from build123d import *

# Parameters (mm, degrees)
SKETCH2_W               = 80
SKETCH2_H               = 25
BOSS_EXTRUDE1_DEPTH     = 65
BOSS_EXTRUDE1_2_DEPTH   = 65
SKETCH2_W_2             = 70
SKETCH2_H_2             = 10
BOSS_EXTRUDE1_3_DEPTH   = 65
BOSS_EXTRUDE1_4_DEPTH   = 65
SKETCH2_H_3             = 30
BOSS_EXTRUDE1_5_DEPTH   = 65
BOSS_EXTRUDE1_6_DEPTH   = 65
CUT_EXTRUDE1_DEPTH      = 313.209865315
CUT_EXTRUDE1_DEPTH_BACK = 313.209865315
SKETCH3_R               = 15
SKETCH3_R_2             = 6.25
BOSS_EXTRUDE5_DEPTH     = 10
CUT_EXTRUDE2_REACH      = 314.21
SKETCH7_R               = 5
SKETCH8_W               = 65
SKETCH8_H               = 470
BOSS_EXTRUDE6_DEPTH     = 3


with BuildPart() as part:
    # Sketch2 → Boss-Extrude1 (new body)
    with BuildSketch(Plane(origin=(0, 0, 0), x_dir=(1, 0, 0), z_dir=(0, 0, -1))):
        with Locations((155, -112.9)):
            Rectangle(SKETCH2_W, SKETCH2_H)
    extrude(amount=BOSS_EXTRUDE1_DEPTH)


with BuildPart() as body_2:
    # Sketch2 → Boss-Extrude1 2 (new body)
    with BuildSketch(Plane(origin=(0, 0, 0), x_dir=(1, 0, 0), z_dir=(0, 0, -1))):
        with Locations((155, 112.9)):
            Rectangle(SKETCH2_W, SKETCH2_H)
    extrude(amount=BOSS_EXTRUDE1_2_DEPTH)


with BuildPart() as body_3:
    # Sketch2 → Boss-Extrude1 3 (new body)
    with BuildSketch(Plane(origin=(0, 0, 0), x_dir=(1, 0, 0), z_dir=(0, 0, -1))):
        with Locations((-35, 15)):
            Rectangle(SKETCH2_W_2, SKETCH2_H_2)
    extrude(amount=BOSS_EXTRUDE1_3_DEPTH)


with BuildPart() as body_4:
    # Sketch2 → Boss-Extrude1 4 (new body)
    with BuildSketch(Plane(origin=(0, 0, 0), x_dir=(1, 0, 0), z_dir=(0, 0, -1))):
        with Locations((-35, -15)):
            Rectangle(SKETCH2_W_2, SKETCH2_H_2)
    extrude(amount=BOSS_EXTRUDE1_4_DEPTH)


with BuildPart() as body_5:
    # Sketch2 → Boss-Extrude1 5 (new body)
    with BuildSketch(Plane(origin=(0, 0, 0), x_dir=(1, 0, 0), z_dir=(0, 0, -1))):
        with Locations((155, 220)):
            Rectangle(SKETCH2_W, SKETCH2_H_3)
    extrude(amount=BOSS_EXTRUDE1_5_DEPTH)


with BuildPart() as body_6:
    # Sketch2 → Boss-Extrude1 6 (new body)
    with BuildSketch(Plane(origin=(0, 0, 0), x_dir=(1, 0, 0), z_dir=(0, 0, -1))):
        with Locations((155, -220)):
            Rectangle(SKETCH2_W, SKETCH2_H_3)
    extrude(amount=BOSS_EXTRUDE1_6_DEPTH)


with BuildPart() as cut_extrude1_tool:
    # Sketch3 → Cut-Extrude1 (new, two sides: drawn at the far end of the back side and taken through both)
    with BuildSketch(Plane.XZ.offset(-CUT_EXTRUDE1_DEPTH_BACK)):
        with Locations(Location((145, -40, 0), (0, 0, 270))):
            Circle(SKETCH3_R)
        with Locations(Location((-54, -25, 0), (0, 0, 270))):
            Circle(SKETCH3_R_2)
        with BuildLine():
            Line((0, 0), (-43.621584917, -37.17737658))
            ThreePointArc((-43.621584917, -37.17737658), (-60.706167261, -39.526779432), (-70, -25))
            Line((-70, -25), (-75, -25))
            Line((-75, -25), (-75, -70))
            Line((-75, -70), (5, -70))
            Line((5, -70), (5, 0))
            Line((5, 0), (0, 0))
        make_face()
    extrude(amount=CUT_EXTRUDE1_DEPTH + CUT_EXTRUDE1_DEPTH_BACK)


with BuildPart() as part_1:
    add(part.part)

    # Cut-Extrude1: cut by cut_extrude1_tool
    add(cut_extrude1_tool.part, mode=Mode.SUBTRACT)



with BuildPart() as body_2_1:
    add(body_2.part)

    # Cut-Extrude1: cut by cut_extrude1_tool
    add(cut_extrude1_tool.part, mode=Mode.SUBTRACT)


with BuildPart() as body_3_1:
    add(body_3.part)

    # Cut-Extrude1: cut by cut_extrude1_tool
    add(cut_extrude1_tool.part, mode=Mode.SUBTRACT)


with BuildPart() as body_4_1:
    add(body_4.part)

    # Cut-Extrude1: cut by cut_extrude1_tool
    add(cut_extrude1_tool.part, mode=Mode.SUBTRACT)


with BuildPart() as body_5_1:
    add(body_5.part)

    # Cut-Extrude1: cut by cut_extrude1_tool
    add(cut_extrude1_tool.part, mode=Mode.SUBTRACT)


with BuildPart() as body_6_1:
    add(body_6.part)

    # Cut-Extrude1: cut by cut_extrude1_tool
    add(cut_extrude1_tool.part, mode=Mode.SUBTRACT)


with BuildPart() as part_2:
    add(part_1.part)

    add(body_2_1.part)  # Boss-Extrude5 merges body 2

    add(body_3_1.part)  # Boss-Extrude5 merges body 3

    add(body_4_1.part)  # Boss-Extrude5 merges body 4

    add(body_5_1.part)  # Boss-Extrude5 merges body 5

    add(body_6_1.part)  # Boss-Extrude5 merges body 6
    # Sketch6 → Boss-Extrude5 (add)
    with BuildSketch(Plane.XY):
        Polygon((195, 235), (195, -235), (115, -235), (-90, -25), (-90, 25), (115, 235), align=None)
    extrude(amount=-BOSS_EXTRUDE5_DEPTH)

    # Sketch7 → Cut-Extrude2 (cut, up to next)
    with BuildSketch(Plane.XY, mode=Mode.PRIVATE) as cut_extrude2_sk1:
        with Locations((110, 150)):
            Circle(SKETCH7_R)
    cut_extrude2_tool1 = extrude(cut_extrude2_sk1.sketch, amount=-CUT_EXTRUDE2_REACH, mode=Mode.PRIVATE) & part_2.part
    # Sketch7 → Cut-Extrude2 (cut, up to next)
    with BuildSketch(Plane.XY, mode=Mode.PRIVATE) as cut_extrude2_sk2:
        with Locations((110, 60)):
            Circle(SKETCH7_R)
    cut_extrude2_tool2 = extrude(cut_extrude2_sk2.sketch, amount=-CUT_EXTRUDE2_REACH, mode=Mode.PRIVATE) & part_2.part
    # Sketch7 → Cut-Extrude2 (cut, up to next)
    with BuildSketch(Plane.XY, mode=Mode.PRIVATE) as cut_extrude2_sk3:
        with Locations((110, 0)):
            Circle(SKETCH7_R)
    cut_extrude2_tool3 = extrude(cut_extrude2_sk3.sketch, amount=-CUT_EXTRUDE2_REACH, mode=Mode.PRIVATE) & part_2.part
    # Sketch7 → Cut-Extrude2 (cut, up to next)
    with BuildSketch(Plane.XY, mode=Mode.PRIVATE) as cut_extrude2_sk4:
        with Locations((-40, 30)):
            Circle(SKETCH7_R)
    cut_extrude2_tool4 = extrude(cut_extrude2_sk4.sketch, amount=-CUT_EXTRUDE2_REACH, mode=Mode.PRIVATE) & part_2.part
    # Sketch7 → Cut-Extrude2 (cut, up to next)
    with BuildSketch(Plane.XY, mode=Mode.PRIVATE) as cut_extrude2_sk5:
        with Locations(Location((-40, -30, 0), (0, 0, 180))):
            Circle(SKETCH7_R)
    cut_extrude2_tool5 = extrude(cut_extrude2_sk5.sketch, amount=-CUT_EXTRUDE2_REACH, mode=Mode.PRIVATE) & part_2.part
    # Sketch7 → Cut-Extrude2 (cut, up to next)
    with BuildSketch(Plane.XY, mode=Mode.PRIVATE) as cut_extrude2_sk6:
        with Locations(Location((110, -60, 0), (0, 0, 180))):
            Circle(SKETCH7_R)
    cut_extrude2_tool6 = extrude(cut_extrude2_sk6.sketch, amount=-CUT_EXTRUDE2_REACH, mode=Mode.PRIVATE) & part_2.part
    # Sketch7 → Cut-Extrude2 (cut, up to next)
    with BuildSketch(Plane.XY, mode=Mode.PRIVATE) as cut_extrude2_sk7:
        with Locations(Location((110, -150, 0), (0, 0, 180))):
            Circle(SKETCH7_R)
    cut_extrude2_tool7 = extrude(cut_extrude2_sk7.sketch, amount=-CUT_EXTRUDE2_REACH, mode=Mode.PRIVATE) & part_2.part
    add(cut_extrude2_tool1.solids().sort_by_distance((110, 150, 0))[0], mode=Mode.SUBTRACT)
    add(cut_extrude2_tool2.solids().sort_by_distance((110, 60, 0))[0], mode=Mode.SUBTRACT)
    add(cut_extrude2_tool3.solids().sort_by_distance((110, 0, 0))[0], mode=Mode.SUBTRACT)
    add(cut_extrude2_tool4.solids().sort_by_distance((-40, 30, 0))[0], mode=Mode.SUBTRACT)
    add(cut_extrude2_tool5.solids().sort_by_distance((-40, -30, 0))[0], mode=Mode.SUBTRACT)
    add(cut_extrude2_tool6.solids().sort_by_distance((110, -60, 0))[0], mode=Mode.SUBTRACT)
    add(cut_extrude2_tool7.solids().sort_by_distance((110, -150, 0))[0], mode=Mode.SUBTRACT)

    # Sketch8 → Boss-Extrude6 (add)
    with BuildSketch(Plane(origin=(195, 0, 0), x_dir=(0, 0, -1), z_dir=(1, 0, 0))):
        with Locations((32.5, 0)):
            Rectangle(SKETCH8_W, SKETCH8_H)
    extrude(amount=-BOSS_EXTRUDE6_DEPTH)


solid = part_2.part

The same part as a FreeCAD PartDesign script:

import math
import FreeCAD as App
import Part
import Sketcher

V = App.Vector
Q = App.Units.Quantity


def add_polygon(sketch, points):
    """Adds a closed chain of lines whose ends are joined by coincident constraints."""
    first, n = sketch.GeometryCount, len(points)
    for a, b in zip(points, points[1:] + points[:1]):
        sketch.addGeometry(Part.LineSegment(App.Vector(*a, 0), App.Vector(*b, 0)), False)
    for i in range(n):
        sketch.addConstraint(Sketcher.Constraint("Coincident", first + i, 2, first + (i + 1) % n, 1))

doc = App.newDocument("Part")
body = doc.addObject("PartDesign::Body", "Body")

# Sketch on XY plane
sketch1 = body.newObject("Sketcher::SketchObject", "Sketch")
sketch1.AttachmentSupport = (doc.getObject("XY_Plane"), [""])
sketch1.MapMode = "FlatFace"
add_polygon(sketch1, [(115, 100), (115, 125), (195, 125), (195, 100)])  # lines 0-3
sketch1.addConstraint([
    Sketcher.Constraint("Vertical", 0),
    Sketcher.Constraint("Horizontal", 1),
    Sketcher.Constraint("Vertical", 2),
    Sketcher.Constraint("Horizontal", 3),
    Sketcher.Constraint("DistanceX", 1, 1, 1, 2, Q("80 mm")),
    Sketcher.Constraint("DistanceY", 0, 1, 0, 2, Q("25 mm")),
    Sketcher.Constraint("DistanceX", -1, 1, 0, 2, Q("115 mm")),
    Sketcher.Constraint("DistanceY", -1, 1, 0, 2, Q("125.4 mm")),
])
pad1 = body.newObject("PartDesign::Pad", "Pad")
pad1.Profile = sketch1
pad1.Length = 65
pad1.Reversed = True
body2 = doc.addObject("PartDesign::Body", "Body001")

# Sketch on XY plane
sketch2 = body2.newObject("Sketcher::SketchObject", "Sketch001")
sketch2.AttachmentSupport = (doc.getObject("XY_Plane001"), [""])
sketch2.MapMode = "FlatFace"
add_polygon(sketch2, [(115, -125), (115, -100), (195, -100), (195, -125)])  # lines 0-3
sketch2.addConstraint([
    Sketcher.Constraint("Vertical", 0),
    Sketcher.Constraint("Horizontal", 1),
    Sketcher.Constraint("Vertical", 2),
    Sketcher.Constraint("Horizontal", 3),
    Sketcher.Constraint("DistanceX", 1, 1, 1, 2, Q("80 mm")),
    Sketcher.Constraint("DistanceY", 0, 1, 0, 2, Q("25 mm")),
    Sketcher.Constraint("DistanceX", -1, 1, 0, 2, Q("115 mm")),
    Sketcher.Constraint("DistanceY", 0, 2, -1, 1, Q("100.4 mm")),
])
pad2 = body2.newObject("PartDesign::Pad", "Pad001")
pad2.Profile = sketch2
pad2.Length = 65
pad2.Reversed = True
body3 = doc.addObject("PartDesign::Body", "Body002")

# Sketch on XY plane
sketch3 = body3.newObject("Sketcher::SketchObject", "Sketch002")
sketch3.AttachmentSupport = (doc.getObject("XY_Plane002"), [""])
sketch3.MapMode = "FlatFace"
add_polygon(sketch3, [(-70, -20), (-70, -10), (0, -10), (0, -20)])  # lines 0-3
sketch3.addConstraint([
    Sketcher.Constraint("Vertical", 0),
    Sketcher.Constraint("Horizontal", 1),
    Sketcher.Constraint("Vertical", 2),
    Sketcher.Constraint("Horizontal", 3),
    Sketcher.Constraint("PointOnObject", 1, 2, -2),
    Sketcher.Constraint("DistanceX", 1, 1, 1, 2, Q("70 mm")),
    Sketcher.Constraint("DistanceY", 0, 1, 0, 2, Q("10 mm")),
    Sketcher.Constraint("DistanceY", 0, 2, -1, 1, Q("10 mm")),
])
pad3 = body3.newObject("PartDesign::Pad", "Pad002")
pad3.Profile = sketch3
pad3.Length = 65
pad3.Reversed = True
body4 = doc.addObject("PartDesign::Body", "Body003")

# Sketch on XY plane
sketch4 = body4.newObject("Sketcher::SketchObject", "Sketch003")
sketch4.AttachmentSupport = (doc.getObject("XY_Plane003"), [""])
sketch4.MapMode = "FlatFace"
add_polygon(sketch4, [(-70, 10), (-70, 20), (0, 20), (0, 10)])  # lines 0-3
sketch4.addConstraint([
    Sketcher.Constraint("Vertical", 0),
    Sketcher.Constraint("Horizontal", 1),
    Sketcher.Constraint("Vertical", 2),
    Sketcher.Constraint("Horizontal", 3),
    Sketcher.Constraint("PointOnObject", 1, 2, -2),
    Sketcher.Constraint("DistanceX", 1, 1, 1, 2, Q("70 mm")),
    Sketcher.Constraint("DistanceY", 0, 1, 0, 2, Q("10 mm")),
    Sketcher.Constraint("DistanceY", -1, 1, 0, 2, Q("20 mm")),
])
pad4 = body4.newObject("PartDesign::Pad", "Pad003")
pad4.Profile = sketch4
pad4.Length = 65
pad4.Reversed = True
body5 = doc.addObject("PartDesign::Body", "Body004")

# Sketch on XY plane
sketch5 = body5.newObject("Sketcher::SketchObject", "Sketch004")
sketch5.AttachmentSupport = (doc.getObject("XY_Plane004"), [""])
sketch5.MapMode = "FlatFace"
add_polygon(sketch5, [(115, -235), (115, -205), (195, -205), (195, -235)])  # lines 0-3
sketch5.addConstraint([
    Sketcher.Constraint("Vertical", 0),
    Sketcher.Constraint("Horizontal", 1),
    Sketcher.Constraint("Vertical", 2),
    Sketcher.Constraint("Horizontal", 3),
    Sketcher.Constraint("DistanceX", 1, 1, 1, 2, Q("80 mm")),
    Sketcher.Constraint("DistanceY", 0, 1, 0, 2, Q("30 mm")),
    Sketcher.Constraint("DistanceX", -1, 1, 0, 2, Q("115 mm")),
    Sketcher.Constraint("DistanceY", 0, 2, -1, 1, Q("205 mm")),
])
pad5 = body5.newObject("PartDesign::Pad", "Pad004")
pad5.Profile = sketch5
pad5.Length = 65
pad5.Reversed = True
body6 = doc.addObject("PartDesign::Body", "Body005")

# Sketch on XY plane
sketch6 = body6.newObject("Sketcher::SketchObject", "Sketch005")
sketch6.AttachmentSupport = (doc.getObject("XY_Plane005"), [""])
sketch6.MapMode = "FlatFace"
add_polygon(sketch6, [(115, 205), (115, 235), (195, 235), (195, 205)])  # lines 0-3
sketch6.addConstraint([
    Sketcher.Constraint("Vertical", 0),
    Sketcher.Constraint("Horizontal", 1),
    Sketcher.Constraint("Vertical", 2),
    Sketcher.Constraint("Horizontal", 3),
    Sketcher.Constraint("DistanceX", 1, 1, 1, 2, Q("80 mm")),
    Sketcher.Constraint("DistanceY", 0, 1, 0, 2, Q("30 mm")),
    Sketcher.Constraint("DistanceX", -1, 1, 0, 2, Q("115 mm")),
    Sketcher.Constraint("DistanceY", -1, 1, 0, 2, Q("235 mm")),
])
pad6 = body6.newObject("PartDesign::Pad", "Pad005")
pad6.Profile = sketch6
pad6.Length = 65
pad6.Reversed = True
body7 = doc.addObject("PartDesign::Body", "Body006")
body7.AllowCompound = True

# Sketch on XZ plane
sketch7 = body7.newObject("Sketcher::SketchObject", "Sketch006")
sketch7.AttachmentSupport = (doc.getObject("XZ_Plane006"), [""])
sketch7.MapMode = "FlatFace"
sketch7.addGeometry([
    Part.Circle(V(145, -40, 0), V(0, 0, 1), 15),  # 0
    Part.Circle(V(-54, -25, 0), V(0, 0, 1), 6),  # 1
    Part.LineSegment(V(0, 0, 0), V(-44, -37, 0)),  # 2
    Part.ArcOfCircle(Part.Circle(V(-54, -25, 0), V(0, 0, 1), 16), math.radians(180), math.radians(310)),  # 3
    Part.LineSegment(V(-70, -25, 0), V(-75, -25, 0)),  # 4
    Part.LineSegment(V(-75, -25, 0), V(-75, -70, 0)),  # 5
    Part.LineSegment(V(-75, -70, 0), V(5, -70, 0)),  # 6
    Part.LineSegment(V(5, -70, 0), V(5, 0, 0)),  # 7
    Part.LineSegment(V(5, 0, 0), V(0, 0, 0)),  # 8
], False)
sketch7.addConstraint([
    Sketcher.Constraint("Tangent", 2, 2, 3, 2),
    Sketcher.Constraint("Coincident", 3, 1, 4, 1),
    Sketcher.Constraint("Coincident", 4, 2, 5, 1),
    Sketcher.Constraint("Coincident", 5, 2, 6, 1),
    Sketcher.Constraint("Coincident", 6, 2, 7, 1),
    Sketcher.Constraint("Coincident", 7, 2, 8, 1),
    Sketcher.Constraint("Coincident", 8, 2, 2, 1),
    Sketcher.Constraint("Horizontal", 4),
    Sketcher.Constraint("Vertical", 5),
    Sketcher.Constraint("Horizontal", 6),
    Sketcher.Constraint("Vertical", 7),
    Sketcher.Constraint("Horizontal", 8),
    Sketcher.Constraint("Coincident", 8, 2, -1, 1),
    Sketcher.Constraint("Coincident", 3, 3, 1, 3),
    Sketcher.Constraint("Horizontal", 1, 3, 3, 1),
    Sketcher.Constraint("Equal", 4, 8),
    Sketcher.Constraint("Diameter", 0, Q("30 mm")),
    Sketcher.Constraint("Radius", 3, Q("16 mm")),
    Sketcher.Constraint("Diameter", 1, Q("12.5 mm")),
    Sketcher.Constraint("DistanceX", 4, 2, 4, 1, Q("5 mm")),
    Sketcher.Constraint("DistanceX", 6, 1, 6, 2, Q("80 mm")),
    Sketcher.Constraint("DistanceY", 5, 2, 5, 1, Q("45 mm")),
    Sketcher.Constraint("DistanceY", 7, 1, 7, 2, Q("70 mm")),
    Sketcher.Constraint("DistanceX", -1, 1, 0, 3, Q("145 mm")),
    Sketcher.Constraint("DistanceY", 0, 3, -1, 1, Q("40 mm")),
])
pad7 = body7.newObject("PartDesign::Pad", "Pad006")
pad7.Profile = sketch7
pad7.Type = "TwoLengths"
pad7.Length = 313.209865
pad7.Length2 = 313.209865
doc.recompute()

body8 = doc.addObject("PartDesign::Body", "Body007")
body8.BaseFeature = body7
boolean = body.newObject("PartDesign::Boolean", "Boolean")
boolean.Type = "Cut"
boolean.addObjects([body8])
doc.recompute()

body9 = doc.addObject("PartDesign::Body", "Body008")
body9.BaseFeature = body7
boolean2 = body2.newObject("PartDesign::Boolean", "Boolean001")
boolean2.Type = "Cut"
boolean2.addObjects([body9])
doc.recompute()

body10 = doc.addObject("PartDesign::Body", "Body009")
body10.BaseFeature = body7
boolean3 = body3.newObject("PartDesign::Boolean", "Boolean002")
boolean3.Type = "Cut"
boolean3.addObjects([body10])
doc.recompute()

body11 = doc.addObject("PartDesign::Body", "Body010")
body11.BaseFeature = body7
boolean4 = body4.newObject("PartDesign::Boolean", "Boolean003")
boolean4.Type = "Cut"
boolean4.addObjects([body11])
doc.recompute()

body12 = doc.addObject("PartDesign::Body", "Body011")
body12.BaseFeature = body7
boolean5 = body5.newObject("PartDesign::Boolean", "Boolean004")
boolean5.Type = "Cut"
boolean5.addObjects([body12])
doc.recompute()

boolean6 = body6.newObject("PartDesign::Boolean", "Boolean005")
boolean6.Type = "Cut"
boolean6.addObjects([body7])
body.AllowCompound = True
doc.recompute()

boolean7 = body.newObject("PartDesign::Boolean", "Boolean006")
boolean7.Type = "Fuse"
boolean7.addObjects([body2])
doc.recompute()

boolean8 = body.newObject("PartDesign::Boolean", "Boolean007")
boolean8.Type = "Fuse"
boolean8.addObjects([body3])
doc.recompute()

boolean9 = body.newObject("PartDesign::Boolean", "Boolean008")
boolean9.Type = "Fuse"
boolean9.addObjects([body4])
doc.recompute()

boolean10 = body.newObject("PartDesign::Boolean", "Boolean009")
boolean10.Type = "Fuse"
boolean10.addObjects([body5])
doc.recompute()

boolean11 = body.newObject("PartDesign::Boolean", "Boolean010")
boolean11.Type = "Fuse"
boolean11.addObjects([body6])

# Sketch on XY plane
sketch8 = body.newObject("Sketcher::SketchObject", "Sketch007")
sketch8.AttachmentSupport = (doc.getObject("XY_Plane"), [""])
sketch8.MapMode = "FlatFace"
add_polygon(sketch8, [(195, -235), (195, 235), (115, 235), (-90, 25), (-90, -25), (115, -235)])  # lines 0-5
sketch8.addConstraint([
    Sketcher.Constraint("Vertical", 0),
    Sketcher.Constraint("Horizontal", 1),
    Sketcher.Constraint("Vertical", 3),
    Sketcher.Constraint("Horizontal", 5),
    Sketcher.Constraint("Symmetric", 1, 2, 4, 2, -1),
    Sketcher.Constraint("Equal", 2, 4),
    Sketcher.Constraint("DistanceX", 1, 2, 1, 1, Q("80 mm")),
    Sketcher.Constraint("DistanceY", 0, 1, 0, 2, Q("470 mm")),
    Sketcher.Constraint("DistanceY", 3, 2, 3, 1, Q("50 mm")),
    Sketcher.Constraint("DistanceX", -1, 1, 0, 2, Q("195 mm")),
    Sketcher.Constraint("DistanceX", 2, 2, -1, 1, Q("90 mm")),
])
pad8 = body.newObject("PartDesign::Pad", "Pad007")
pad8.Profile = sketch8
pad8.Length = 10
pad8.Reversed = True

# Sketch on XY plane
sketch9 = body.newObject("Sketcher::SketchObject", "Sketch008")
sketch9.AttachmentSupport = (doc.getObject("XY_Plane"), [""])
sketch9.MapMode = "FlatFace"
sketch9.addGeometry(Part.Circle(V(110, 150, 0), V(0, 0, 1), 5), False)
sketch9.addConstraint([
    Sketcher.Constraint("Diameter", 0, Q("10 mm")),
    Sketcher.Constraint("DistanceX", -1, 1, 0, 3, Q("110 mm")),
    Sketcher.Constraint("DistanceY", -1, 1, 0, 3, Q("150 mm")),
])
pocket1 = body.newObject("PartDesign::Pocket", "Pocket")
pocket1.Profile = sketch9
pocket1.Type = "UpToFirst"

# Sketch on XY plane
sketch10 = body.newObject("Sketcher::SketchObject", "Sketch009")
sketch10.AttachmentSupport = (doc.getObject("XY_Plane"), [""])
sketch10.MapMode = "FlatFace"
sketch10.addGeometry(Part.Circle(V(110, 60, 0), V(0, 0, 1), 5), False)
sketch10.addConstraint([
    Sketcher.Constraint("Diameter", 0, Q("10 mm")),
    Sketcher.Constraint("DistanceX", -1, 1, 0, 3, Q("110 mm")),
    Sketcher.Constraint("DistanceY", -1, 1, 0, 3, Q("60 mm")),
])
pocket2 = body.newObject("PartDesign::Pocket", "Pocket001")
pocket2.Profile = sketch10
pocket2.Type = "UpToFirst"

# Sketch on XY plane
sketch11 = body.newObject("Sketcher::SketchObject", "Sketch010")
sketch11.AttachmentSupport = (doc.getObject("XY_Plane"), [""])
sketch11.MapMode = "FlatFace"
sketch11.addGeometry(Part.Circle(V(110, 0, 0), V(0, 0, 1), 5), False)
sketch11.addConstraint([
    Sketcher.Constraint("PointOnObject", 0, 3, -1),
    Sketcher.Constraint("Diameter", 0, Q("10 mm")),
    Sketcher.Constraint("DistanceX", -1, 1, 0, 3, Q("110 mm")),
])
pocket3 = body.newObject("PartDesign::Pocket", "Pocket002")
pocket3.Profile = sketch11
pocket3.Type = "UpToFirst"

# Sketch on XY plane
sketch12 = body.newObject("Sketcher::SketchObject", "Sketch011")
sketch12.AttachmentSupport = (doc.getObject("XY_Plane"), [""])
sketch12.MapMode = "FlatFace"
sketch12.addGeometry(Part.Circle(V(-40, 30, 0), V(0, 0, 1), 5), False)
sketch12.addConstraint([
    Sketcher.Constraint("Diameter", 0, Q("10 mm")),
    Sketcher.Constraint("DistanceX", 0, 3, -1, 1, Q("40 mm")),
    Sketcher.Constraint("DistanceY", -1, 1, 0, 3, Q("30 mm")),
])
pocket4 = body.newObject("PartDesign::Pocket", "Pocket003")
pocket4.Profile = sketch12
pocket4.Type = "UpToFirst"

# Sketch on XY plane
sketch13 = body.newObject("Sketcher::SketchObject", "Sketch012")
sketch13.AttachmentSupport = (doc.getObject("XY_Plane"), [""])
sketch13.MapMode = "FlatFace"
sketch13.addGeometry(Part.Circle(V(-40, -30, 0), V(0, 0, 1), 5), False)
sketch13.addConstraint([
    Sketcher.Constraint("Diameter", 0, Q("10 mm")),
    Sketcher.Constraint("DistanceX", 0, 3, -1, 1, Q("40 mm")),
    Sketcher.Constraint("DistanceY", 0, 3, -1, 1, Q("30 mm")),
])
pocket5 = body.newObject("PartDesign::Pocket", "Pocket004")
pocket5.Profile = sketch13
pocket5.Type = "UpToFirst"

# Sketch on XY plane
sketch14 = body.newObject("Sketcher::SketchObject", "Sketch013")
sketch14.AttachmentSupport = (doc.getObject("XY_Plane"), [""])
sketch14.MapMode = "FlatFace"
sketch14.addGeometry(Part.Circle(V(110, -60, 0), V(0, 0, 1), 5), False)
sketch14.addConstraint([
    Sketcher.Constraint("Diameter", 0, Q("10 mm")),
    Sketcher.Constraint("DistanceX", -1, 1, 0, 3, Q("110 mm")),
    Sketcher.Constraint("DistanceY", 0, 3, -1, 1, Q("60 mm")),
])
pocket6 = body.newObject("PartDesign::Pocket", "Pocket005")
pocket6.Profile = sketch14
pocket6.Type = "UpToFirst"

# Sketch on XY plane
sketch15 = body.newObject("Sketcher::SketchObject", "Sketch014")
sketch15.AttachmentSupport = (doc.getObject("XY_Plane"), [""])
sketch15.MapMode = "FlatFace"
sketch15.addGeometry(Part.Circle(V(110, -150, 0), V(0, 0, 1), 5), False)
sketch15.addConstraint([
    Sketcher.Constraint("Diameter", 0, Q("10 mm")),
    Sketcher.Constraint("DistanceX", -1, 1, 0, 3, Q("110 mm")),
    Sketcher.Constraint("DistanceY", 0, 3, -1, 1, Q("150 mm")),
])
pocket7 = body.newObject("PartDesign::Pocket", "Pocket006")
pocket7.Profile = sketch15
pocket7.Type = "UpToFirst"

# Sketch on YZ plane
sketch16 = body.newObject("Sketcher::SketchObject", "Sketch015")
sketch16.AttachmentSupport = (doc.getObject("YZ_Plane"), [""])
sketch16.MapMode = "FlatFace"
sketch16.AttachmentOffset = App.Placement(V(0, 0, 195), App.Rotation())
add_polygon(sketch16, [(235, 0), (-235, 0), (-235, -65), (235, -65)])  # lines 0-3
sketch16.addConstraint([
    Sketcher.Constraint("Horizontal", 0),
    Sketcher.Constraint("Vertical", 1),
    Sketcher.Constraint("Horizontal", 2),
    Sketcher.Constraint("Vertical", 3),
    Sketcher.Constraint("Symmetric", 0, 2, 3, 2, -1, 1),
    Sketcher.Constraint("DistanceX", 0, 2, 0, 1, Q("470 mm")),
    Sketcher.Constraint("DistanceY", 1, 2, 1, 1, Q("65 mm")),
])
pad9 = body.newObject("PartDesign::Pad", "Pad008")
pad9.Profile = sketch16
pad9.Length = 3
pad9.Reversed = True

doc.recompute()
